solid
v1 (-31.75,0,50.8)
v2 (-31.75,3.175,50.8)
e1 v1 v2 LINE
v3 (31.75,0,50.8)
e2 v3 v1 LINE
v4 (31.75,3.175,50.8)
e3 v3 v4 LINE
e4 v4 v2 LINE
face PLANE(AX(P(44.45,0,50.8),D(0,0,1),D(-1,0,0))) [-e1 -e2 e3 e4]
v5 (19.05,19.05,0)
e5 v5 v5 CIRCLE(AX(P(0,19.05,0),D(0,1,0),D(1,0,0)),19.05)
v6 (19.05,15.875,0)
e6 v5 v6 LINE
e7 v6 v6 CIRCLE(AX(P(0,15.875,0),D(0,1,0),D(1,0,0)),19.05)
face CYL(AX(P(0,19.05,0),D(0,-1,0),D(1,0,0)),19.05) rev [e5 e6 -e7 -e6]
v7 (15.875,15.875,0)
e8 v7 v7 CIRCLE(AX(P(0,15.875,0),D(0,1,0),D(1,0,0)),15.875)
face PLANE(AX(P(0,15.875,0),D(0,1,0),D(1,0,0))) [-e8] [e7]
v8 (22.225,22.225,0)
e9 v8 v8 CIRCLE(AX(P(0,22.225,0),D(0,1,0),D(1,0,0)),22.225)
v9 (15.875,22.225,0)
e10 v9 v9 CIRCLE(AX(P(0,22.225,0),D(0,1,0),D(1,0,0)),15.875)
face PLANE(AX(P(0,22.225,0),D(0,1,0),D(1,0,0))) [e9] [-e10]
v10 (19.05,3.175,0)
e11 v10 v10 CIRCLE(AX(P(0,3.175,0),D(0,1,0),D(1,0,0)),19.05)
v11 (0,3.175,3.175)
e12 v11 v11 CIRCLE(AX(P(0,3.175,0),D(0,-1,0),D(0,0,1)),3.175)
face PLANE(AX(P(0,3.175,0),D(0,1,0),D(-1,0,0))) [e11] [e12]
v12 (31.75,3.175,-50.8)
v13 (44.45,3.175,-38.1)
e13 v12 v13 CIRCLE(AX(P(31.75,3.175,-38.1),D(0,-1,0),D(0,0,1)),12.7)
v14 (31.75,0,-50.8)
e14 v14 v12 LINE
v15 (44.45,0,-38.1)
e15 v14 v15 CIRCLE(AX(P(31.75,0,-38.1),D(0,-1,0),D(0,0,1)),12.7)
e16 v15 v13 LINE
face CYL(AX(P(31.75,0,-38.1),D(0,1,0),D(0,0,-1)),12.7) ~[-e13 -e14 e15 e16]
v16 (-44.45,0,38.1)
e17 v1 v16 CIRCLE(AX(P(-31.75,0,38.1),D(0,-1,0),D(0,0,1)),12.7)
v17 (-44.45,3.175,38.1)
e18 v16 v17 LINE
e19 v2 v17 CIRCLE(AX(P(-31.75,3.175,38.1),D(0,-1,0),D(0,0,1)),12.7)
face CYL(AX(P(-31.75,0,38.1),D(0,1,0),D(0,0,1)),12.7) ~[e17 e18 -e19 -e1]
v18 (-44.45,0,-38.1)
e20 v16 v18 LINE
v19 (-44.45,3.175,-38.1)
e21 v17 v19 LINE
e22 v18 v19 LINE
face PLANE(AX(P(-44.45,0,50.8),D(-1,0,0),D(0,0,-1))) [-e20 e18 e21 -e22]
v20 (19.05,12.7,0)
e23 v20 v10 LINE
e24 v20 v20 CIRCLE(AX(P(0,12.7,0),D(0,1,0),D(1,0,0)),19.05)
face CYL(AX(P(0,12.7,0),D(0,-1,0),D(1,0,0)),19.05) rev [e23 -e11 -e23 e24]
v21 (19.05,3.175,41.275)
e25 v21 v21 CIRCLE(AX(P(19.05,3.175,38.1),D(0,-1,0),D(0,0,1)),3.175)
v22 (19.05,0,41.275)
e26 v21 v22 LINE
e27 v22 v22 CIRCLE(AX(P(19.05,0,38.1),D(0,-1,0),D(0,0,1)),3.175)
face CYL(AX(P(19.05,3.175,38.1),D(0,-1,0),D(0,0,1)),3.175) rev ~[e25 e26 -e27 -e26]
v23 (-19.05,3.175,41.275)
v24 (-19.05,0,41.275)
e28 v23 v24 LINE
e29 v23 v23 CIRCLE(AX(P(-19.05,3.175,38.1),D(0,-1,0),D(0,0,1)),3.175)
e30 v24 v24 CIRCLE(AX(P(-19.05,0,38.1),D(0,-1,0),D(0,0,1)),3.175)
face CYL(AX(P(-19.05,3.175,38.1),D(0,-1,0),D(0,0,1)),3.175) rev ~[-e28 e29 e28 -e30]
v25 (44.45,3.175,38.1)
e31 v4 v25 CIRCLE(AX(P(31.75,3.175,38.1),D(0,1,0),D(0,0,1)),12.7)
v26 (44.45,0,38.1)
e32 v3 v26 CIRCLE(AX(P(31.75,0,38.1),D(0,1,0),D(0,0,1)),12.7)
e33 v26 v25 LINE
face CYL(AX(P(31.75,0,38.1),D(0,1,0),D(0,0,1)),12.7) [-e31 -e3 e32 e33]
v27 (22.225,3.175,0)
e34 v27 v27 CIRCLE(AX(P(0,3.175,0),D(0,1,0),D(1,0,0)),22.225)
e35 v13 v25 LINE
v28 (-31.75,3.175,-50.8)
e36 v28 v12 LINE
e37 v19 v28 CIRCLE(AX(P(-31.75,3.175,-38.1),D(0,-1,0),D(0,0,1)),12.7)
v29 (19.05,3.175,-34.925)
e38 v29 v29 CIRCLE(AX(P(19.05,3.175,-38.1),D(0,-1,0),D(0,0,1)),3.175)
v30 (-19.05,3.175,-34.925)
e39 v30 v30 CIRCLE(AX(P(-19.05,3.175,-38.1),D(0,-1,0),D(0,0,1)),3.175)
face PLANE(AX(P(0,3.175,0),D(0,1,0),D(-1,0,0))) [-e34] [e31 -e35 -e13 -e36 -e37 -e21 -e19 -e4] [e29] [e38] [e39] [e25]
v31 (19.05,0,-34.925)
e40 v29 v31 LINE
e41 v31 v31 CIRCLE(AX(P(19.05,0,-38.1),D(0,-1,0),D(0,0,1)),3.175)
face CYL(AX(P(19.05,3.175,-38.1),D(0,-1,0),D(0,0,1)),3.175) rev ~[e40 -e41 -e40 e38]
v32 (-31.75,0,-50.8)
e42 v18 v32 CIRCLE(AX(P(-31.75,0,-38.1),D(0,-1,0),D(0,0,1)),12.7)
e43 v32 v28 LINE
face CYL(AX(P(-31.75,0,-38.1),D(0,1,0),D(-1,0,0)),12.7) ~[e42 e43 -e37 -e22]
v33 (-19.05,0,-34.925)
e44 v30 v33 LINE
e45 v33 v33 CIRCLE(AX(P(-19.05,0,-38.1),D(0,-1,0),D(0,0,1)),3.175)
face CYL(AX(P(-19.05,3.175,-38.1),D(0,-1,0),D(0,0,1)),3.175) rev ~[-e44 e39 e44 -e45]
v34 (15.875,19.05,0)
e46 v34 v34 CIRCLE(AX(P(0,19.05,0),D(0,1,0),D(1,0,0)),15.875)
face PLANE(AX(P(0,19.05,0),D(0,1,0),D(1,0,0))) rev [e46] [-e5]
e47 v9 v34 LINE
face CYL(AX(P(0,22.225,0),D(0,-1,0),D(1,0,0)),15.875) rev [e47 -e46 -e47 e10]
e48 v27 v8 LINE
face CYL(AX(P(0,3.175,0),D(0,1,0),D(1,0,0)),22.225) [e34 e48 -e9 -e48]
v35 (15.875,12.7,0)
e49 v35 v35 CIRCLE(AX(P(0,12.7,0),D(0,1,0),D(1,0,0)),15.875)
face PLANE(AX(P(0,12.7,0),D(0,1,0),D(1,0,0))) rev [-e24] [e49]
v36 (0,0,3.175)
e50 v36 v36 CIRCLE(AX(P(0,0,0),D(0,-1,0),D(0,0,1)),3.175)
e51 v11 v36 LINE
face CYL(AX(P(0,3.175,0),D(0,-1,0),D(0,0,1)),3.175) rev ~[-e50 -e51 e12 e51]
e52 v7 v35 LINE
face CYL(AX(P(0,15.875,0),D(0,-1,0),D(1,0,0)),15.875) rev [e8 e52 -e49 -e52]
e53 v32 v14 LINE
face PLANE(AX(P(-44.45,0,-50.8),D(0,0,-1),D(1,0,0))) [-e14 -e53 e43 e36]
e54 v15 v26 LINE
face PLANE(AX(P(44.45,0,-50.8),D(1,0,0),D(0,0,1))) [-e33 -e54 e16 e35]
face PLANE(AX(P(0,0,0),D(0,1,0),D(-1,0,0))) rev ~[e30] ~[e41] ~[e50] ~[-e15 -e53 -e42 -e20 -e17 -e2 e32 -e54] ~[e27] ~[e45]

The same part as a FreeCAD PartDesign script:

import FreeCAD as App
import Part
import Sketcher

V = App.Vector
Q = App.Units.Quantity


def edges_at(feature, points):
    """Names of the edges that pass closest to the given points."""
    edges = feature.Shape.Edges
    near = lambda p: min(range(len(edges)), key=lambda i: edges[i].distToShape(Part.Vertex(*p))[0])
    return sorted({f"Edge{near(p) + 1}" for p in points})

doc = App.newDocument("Part")
body = doc.addObject("PartDesign::Body", "Body")

sketch1 = body.newObject("Sketcher::SketchObject", "Sketch")
sketch1.AttachmentSupport = (doc.getObject("XZ_Plane"), [""])
sketch1.MapMode = "FlatFace"
sketch1.addGeometry([
    Part.LineSegment(V(-44.45, 50.8, 0), V(44.45, 50.8, 0)),
    Part.LineSegment(V(44.45, 50.8, 0), V(44.45, -50.8, 0)),
    Part.LineSegment(V(44.45, -50.8, 0), V(-44.45, -50.8, 0)),
    Part.LineSegment(V(-44.45, -50.8, 0), V(-44.45, 50.8, 0)),
], False)
sketch1.addConstraint([
    Sketcher.Constraint("Coincident", 0, 2, 1, 1),
    Sketcher.Constraint("Coincident", 1, 2, 2, 1),
    Sketcher.Constraint("Coincident", 2, 2, 3, 1),
    Sketcher.Constraint("Coincident", 3, 2, 0, 1),
    Sketcher.Constraint("Horizontal", 0),
    Sketcher.Constraint("Vertical", 1),
    Sketcher.Constraint("Horizontal", 2),
    Sketcher.Constraint("Vertical", 3),
    Sketcher.Constraint("Symmetric", 0, 2, 2, 2, -1, 1),
    Sketcher.Constraint("DistanceY", -1, 1, 0, 2, Q("2 in")),
    Sketcher.Constraint("DistanceX", -1, 1, 0, 2, Q("1.75 in")),
])
pad1 = body.newObject("PartDesign::Pad", "Pad")
pad1.Profile = sketch1
pad1.Length = Q("0.125 in")
pad1.Reversed = True
doc.recompute()

fillet = body.newObject("PartDesign::Fillet", "Fillet")
fillet.Base = (pad1, edges_at(pad1, [
    (44.45, 1.587, 50.8),
    (-44.45, 1.587, 50.8),
    (44.45, 1.587, -50.8),
    (-44.45, 1.587, -50.8),
]))
fillet.Radius = Q("0.5 in")

sketch2 = body.newObject("Sketcher::SketchObject", "Sketch001")
sketch2.AttachmentSupport = (doc.getObject("XZ_Plane"), [""])
sketch2.MapMode = "FlatFace"
sketch2.AttachmentOffset = App.Placement(V(0, 0, -0.125 * 25.4), App.Rotation())
sketch2.addGeometry([
    Part.Circle(V(0, 0, 0), V(0, 0, 1), 3.175),
    Part.Circle(V(-19.05, -38.1, 0), V(0, 0, 1), 3.175),
    Part.Circle(V(19.05, -38.1, 0), V(0, 0, 1), 3.175),
    Part.Circle(V(19.05, 38.1, 0), V(0, 0, 1), 3.175),
    Part.Circle(V(-19.05, 38.1, 0), V(0, 0, 1), 3.175),
], False)
sketch2.addConstraint([
    Sketcher.Constraint("Coincident", 0, 3, -1, 1),
    Sketcher.Constraint("Equal", 0, 1),
    Sketcher.Constraint("Equal", 1, 2),
    Sketcher.Constraint("Equal", 2, 3),
    Sketcher.Constraint("Equal", 3, 4),
    Sketcher.Constraint("Symmetric", 1, 3, 3, 3, -1, 1),
    Sketcher.Constraint("Symmetric", 2, 3, 4, 3, -1, 1),
    Sketcher.Constraint("Symmetric", 1, 3, 2, 3, -2),
    Sketcher.Constraint("Diameter", 0, Q("0.25 in")),
    Sketcher.Constraint("DistanceY", 2, 3, 3, 3, Q("3 in")),
    Sketcher.Constraint("DistanceX", 1, 3, 2, 3, Q("1.5 in")),
])
doc.recompute()
hole = body.newObject("PartDesign::Hole", "Hole")
hole.Profile = sketch2
hole.ThreadType = "None"
hole.Diameter = Q("0.25 in")
hole.DepthType = "ThroughAll"
hole.Reversed = True

sketch3 = body.newObject("Sketcher::SketchObject", "Sketch002")
sketch3.AttachmentSupport = (doc.getObject("XY_Plane"), [""])
sketch3.MapMode = "FlatFace"
sketch3.addGeometry([
    Part.LineSegment(V(19.05, 3.175, 0), V(22.225, 3.175, 0)),
    Part.LineSegment(V(22.225, 3.175, 0), V(22.225, 22.225, 0)),
    Part.LineSegment(V(22.225, 22.225, 0), V(15.875, 22.225, 0)),
    Part.LineSegment(V(15.875, 22.225, 0), V(15.875, 19.05, 0)),
    Part.LineSegment(V(15.875, 19.05, 0), V(19.05, 19.05, 0)),
    Part.LineSegment(V(19.05, 19.05, 0), V(19.05, 15.875, 0)),
    Part.LineSegment(V(19.05, 15.875, 0), V(15.875, 15.875, 0)),
    Part.LineSegment(V(15.875, 15.875, 0), V(15.875, 12.7, 0)),
    Part.LineSegment(V(15.875, 12.7, 0), V(19.05, 12.7, 0)),
    Part.LineSegment(V(19.05, 12.7, 0), V(19.05, 3.175, 0)),
], False)
sketch3.addConstraint([
    Sketcher.Constraint("Coincident", 0, 2, 1, 1),
    Sketcher.Constraint("Coincident", 1, 2, 2, 1),
    Sketcher.Constraint("Coincident", 2, 2, 3, 1),
    Sketcher.Constraint("Coincident", 3, 2, 4, 1),
    Sketcher.Constraint("Coincident", 4, 2, 5, 1),
    Sketcher.Constraint("Coincident", 5, 2, 6, 1),
    Sketcher.Constraint("Coincident", 6, 2, 7, 1),
    Sketcher.Constraint("Coincident", 7, 2, 8, 1),
    Sketcher.Constraint("Coincident", 8, 2, 9, 1),
    Sketcher.Constraint("Coincident", 9, 2, 0, 1),
    Sketcher.Constraint("Horizontal", 0),
    Sketcher.Constraint("Vertical", 1),
    Sketcher.Constraint("Horizontal", 2),
    Sketcher.Constraint("Vertical", 3),
    Sketcher.Constraint("Horizontal", 4),
    Sketcher.Constraint("Vertical", 5),
    Sketcher.Constraint("Horizontal", 6),
    Sketcher.Constraint("Vertical", 7),
    Sketcher.Constraint("Horizontal", 8),
    Sketcher.Constraint("Vertical", 9),
    Sketcher.Constraint("Vertical", 3, 2, 6, 2),
    Sketcher.Constraint("Vertical", 5, 2, 8, 2),
    Sketcher.Constraint("Equal", 0, 4),
    Sketcher.Constraint("Equal", 8, 3),
    Sketcher.Constraint("Equal", 3, 5),
    Sketcher.Constraint("Equal", 5, 7),
    Sketcher.Constraint("DistanceX", 2, 2, 2, 1, Q("0.25 in")),
    Sketcher.Constraint("DistanceY", 1, 1, 1, 2, Q("0.75 in")),
    Sketcher.Constraint("DistanceY", -1, 1, 3, 2, Q("0.75 in")),
    Sketcher.Constraint("DistanceX", -1, 1, 4, 2, Q("0.75 in")),
])
revolution = body.newObject("PartDesign::Revolution", "Revolution")
revolution.Profile = sketch3
revolution.ReferenceAxis = (sketch3, ["V_Axis"])
revolution.Angle = 360

doc.recompute()
